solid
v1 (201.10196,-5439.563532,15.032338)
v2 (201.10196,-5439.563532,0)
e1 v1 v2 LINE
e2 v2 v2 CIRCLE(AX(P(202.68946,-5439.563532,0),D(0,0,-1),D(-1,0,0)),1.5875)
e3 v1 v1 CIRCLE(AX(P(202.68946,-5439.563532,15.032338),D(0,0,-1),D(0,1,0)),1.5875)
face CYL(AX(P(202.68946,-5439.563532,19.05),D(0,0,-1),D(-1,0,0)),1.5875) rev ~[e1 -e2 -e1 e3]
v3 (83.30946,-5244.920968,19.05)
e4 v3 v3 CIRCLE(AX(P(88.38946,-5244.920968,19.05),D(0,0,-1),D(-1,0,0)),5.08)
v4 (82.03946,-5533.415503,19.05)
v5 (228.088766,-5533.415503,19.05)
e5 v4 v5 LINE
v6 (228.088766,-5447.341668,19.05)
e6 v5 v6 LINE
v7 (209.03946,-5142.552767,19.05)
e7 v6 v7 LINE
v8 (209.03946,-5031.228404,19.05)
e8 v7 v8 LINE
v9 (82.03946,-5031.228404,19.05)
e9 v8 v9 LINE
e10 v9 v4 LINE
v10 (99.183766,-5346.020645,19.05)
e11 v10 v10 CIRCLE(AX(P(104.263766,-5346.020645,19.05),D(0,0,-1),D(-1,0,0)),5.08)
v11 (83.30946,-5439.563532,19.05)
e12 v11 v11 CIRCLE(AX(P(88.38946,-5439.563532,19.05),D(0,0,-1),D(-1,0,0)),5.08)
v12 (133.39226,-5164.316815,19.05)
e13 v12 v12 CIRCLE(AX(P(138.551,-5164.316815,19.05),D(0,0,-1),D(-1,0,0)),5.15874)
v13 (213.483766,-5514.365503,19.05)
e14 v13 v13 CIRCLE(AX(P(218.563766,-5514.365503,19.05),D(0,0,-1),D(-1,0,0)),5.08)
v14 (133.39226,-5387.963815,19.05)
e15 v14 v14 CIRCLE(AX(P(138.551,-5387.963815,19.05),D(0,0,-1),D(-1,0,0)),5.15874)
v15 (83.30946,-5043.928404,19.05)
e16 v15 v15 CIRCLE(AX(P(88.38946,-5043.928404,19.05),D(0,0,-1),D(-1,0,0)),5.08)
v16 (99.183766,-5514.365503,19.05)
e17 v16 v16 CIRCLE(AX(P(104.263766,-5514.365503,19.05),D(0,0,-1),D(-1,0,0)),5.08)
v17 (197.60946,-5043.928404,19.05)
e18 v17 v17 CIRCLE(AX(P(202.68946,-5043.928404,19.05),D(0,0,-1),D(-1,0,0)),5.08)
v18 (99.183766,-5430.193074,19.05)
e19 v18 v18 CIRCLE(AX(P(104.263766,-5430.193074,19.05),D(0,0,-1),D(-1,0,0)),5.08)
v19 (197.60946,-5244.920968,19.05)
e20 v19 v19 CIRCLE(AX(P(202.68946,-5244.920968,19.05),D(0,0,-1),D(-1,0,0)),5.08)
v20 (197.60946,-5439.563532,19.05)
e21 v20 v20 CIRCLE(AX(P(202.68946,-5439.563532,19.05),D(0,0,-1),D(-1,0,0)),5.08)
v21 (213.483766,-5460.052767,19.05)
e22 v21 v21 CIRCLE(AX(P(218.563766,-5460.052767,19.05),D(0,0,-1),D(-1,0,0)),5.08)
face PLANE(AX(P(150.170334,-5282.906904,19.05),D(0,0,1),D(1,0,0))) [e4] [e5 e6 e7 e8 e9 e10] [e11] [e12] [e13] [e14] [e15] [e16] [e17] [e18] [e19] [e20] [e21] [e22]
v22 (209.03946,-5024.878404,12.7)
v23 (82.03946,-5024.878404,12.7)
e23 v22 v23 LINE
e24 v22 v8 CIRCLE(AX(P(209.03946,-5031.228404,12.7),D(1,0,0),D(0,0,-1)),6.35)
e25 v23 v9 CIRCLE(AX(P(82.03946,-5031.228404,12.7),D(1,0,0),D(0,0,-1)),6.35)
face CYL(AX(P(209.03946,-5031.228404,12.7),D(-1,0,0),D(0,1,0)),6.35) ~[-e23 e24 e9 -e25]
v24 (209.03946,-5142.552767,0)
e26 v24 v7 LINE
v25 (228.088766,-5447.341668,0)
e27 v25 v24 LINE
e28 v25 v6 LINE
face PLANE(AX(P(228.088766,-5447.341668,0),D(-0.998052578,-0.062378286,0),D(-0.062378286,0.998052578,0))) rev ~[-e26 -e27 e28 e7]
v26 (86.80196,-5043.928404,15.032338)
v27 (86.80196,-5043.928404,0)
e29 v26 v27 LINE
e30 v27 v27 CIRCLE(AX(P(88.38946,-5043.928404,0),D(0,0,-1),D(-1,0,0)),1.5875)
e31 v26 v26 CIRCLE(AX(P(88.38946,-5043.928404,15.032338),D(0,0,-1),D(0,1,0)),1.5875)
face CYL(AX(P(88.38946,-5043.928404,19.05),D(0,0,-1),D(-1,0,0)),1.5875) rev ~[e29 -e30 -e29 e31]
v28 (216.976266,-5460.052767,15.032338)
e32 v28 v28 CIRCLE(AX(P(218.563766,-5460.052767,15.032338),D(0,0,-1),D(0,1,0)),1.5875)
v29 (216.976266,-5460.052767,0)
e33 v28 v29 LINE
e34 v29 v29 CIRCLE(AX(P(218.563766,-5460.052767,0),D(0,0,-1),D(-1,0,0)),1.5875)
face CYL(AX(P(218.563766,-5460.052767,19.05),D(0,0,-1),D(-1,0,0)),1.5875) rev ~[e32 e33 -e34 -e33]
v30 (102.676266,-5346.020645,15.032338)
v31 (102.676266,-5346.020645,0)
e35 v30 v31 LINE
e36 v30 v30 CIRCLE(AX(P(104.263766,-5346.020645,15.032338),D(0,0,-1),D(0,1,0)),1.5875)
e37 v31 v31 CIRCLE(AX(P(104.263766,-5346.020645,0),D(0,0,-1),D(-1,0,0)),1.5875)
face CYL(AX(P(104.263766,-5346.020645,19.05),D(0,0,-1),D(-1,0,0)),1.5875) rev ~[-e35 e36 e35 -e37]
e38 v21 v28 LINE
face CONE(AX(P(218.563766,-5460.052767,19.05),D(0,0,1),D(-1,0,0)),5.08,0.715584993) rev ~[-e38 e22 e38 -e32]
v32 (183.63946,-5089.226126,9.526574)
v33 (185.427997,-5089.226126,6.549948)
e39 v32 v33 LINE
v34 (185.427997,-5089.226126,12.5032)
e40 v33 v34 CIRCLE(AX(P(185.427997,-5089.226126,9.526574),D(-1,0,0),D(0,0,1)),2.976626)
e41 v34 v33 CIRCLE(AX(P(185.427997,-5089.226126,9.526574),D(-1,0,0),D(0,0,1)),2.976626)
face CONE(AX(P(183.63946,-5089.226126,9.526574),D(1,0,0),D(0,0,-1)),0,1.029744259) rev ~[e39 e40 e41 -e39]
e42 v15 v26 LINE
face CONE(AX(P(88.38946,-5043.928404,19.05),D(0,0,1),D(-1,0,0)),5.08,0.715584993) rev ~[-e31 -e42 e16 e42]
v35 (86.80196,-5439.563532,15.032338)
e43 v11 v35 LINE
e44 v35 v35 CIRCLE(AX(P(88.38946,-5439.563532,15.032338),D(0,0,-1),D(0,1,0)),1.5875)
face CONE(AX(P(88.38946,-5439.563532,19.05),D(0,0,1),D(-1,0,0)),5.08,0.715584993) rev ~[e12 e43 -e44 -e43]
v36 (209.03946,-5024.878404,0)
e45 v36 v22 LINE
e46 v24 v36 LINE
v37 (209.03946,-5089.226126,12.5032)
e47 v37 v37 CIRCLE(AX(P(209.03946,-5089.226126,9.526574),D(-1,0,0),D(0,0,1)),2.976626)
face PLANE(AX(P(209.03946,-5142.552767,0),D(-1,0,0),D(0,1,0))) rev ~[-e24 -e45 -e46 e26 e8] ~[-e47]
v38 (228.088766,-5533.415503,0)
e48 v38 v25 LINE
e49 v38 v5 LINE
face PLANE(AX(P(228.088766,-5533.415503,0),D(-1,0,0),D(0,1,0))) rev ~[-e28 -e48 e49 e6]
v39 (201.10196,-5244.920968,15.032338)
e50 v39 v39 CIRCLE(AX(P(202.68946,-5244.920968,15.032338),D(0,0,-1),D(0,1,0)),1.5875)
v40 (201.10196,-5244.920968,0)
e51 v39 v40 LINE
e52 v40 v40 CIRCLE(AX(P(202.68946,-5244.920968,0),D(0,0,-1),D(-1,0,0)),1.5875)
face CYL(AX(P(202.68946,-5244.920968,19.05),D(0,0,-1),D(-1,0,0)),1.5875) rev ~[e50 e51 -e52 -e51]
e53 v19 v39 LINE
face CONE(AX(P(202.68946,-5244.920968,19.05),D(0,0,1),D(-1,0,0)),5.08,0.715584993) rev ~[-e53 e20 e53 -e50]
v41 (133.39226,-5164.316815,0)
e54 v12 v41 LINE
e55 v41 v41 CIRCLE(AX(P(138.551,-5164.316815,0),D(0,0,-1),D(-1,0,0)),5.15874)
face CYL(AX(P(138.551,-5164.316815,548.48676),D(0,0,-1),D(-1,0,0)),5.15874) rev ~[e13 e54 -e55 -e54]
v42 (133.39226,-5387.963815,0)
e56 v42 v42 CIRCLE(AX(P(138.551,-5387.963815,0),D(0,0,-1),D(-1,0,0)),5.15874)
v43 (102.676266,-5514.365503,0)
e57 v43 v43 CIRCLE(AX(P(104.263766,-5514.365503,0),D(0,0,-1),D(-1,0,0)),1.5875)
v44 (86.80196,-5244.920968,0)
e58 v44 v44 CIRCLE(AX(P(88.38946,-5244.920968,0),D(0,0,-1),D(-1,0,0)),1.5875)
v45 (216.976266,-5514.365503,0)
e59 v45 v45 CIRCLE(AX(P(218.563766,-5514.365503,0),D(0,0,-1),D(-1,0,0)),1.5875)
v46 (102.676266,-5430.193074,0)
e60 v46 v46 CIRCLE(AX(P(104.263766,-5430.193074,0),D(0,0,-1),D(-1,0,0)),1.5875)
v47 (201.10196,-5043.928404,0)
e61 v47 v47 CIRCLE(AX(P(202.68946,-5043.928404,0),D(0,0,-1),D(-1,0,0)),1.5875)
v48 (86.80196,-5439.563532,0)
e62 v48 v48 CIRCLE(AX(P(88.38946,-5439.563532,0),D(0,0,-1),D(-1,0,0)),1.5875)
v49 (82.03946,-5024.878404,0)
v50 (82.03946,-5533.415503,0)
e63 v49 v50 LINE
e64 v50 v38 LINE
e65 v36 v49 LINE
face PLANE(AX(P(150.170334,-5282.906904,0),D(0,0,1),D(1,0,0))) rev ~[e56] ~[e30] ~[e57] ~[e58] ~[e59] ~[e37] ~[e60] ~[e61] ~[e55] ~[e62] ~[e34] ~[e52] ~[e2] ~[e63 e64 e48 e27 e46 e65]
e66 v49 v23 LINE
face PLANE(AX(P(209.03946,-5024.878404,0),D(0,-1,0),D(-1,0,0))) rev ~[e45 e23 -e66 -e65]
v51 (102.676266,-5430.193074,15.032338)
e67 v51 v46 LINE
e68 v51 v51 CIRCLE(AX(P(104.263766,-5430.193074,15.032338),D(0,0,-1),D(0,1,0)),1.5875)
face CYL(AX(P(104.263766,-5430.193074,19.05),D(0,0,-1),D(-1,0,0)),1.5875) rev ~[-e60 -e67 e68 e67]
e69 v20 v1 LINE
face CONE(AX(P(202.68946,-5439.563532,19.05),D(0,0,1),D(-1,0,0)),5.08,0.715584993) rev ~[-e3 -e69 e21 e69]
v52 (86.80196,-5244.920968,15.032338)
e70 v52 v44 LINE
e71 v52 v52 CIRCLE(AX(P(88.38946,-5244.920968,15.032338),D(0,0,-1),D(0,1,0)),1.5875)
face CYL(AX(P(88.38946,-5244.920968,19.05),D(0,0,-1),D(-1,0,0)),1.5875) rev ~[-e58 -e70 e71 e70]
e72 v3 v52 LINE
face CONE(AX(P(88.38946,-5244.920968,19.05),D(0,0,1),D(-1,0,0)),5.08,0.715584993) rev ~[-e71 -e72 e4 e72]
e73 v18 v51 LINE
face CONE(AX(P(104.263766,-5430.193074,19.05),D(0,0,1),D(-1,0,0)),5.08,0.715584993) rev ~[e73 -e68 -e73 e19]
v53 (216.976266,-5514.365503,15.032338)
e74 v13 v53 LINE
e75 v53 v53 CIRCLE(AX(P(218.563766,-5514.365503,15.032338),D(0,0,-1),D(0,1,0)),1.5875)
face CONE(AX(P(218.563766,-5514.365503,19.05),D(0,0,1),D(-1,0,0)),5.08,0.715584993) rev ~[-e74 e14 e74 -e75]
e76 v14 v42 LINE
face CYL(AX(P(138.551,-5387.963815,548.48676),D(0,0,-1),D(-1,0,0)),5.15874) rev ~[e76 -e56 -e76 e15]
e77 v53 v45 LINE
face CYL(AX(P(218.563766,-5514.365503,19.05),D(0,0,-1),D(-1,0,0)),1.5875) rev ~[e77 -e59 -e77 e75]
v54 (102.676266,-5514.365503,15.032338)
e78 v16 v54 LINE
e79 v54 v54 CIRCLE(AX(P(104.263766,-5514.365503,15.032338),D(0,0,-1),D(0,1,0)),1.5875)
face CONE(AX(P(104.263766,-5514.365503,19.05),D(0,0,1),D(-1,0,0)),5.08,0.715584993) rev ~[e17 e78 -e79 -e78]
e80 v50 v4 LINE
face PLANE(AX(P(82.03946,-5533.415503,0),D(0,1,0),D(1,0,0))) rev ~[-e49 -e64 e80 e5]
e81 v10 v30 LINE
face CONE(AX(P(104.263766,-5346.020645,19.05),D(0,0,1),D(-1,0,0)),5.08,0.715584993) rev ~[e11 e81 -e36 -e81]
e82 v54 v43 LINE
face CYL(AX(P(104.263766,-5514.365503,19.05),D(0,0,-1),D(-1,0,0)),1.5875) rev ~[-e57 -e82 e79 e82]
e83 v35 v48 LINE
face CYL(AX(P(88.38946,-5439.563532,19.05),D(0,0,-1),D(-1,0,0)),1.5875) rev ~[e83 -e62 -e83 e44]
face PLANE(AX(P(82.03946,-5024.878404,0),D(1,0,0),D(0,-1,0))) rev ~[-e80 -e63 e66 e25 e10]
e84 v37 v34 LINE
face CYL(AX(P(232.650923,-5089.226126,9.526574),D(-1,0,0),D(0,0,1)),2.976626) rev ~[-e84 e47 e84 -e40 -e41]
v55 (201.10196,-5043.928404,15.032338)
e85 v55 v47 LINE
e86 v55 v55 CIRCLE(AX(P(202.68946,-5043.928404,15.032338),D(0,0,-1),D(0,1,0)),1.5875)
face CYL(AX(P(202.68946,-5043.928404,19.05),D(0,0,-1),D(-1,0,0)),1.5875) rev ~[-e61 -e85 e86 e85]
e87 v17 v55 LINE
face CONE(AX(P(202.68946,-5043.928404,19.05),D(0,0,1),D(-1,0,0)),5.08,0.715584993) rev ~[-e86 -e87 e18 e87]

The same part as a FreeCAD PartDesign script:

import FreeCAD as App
import Part
import Sketcher

V = App.Vector
Q = App.Units.Quantity


def edges_at(feature, points):
    """Names of the edges that pass closest to the given points."""
    edges = feature.Shape.Edges
    near = lambda p: min(range(len(edges)), key=lambda i: edges[i].distToShape(Part.Vertex(*p))[0])
    return sorted({f"Edge{near(p) + 1}" for p in points})

doc = App.newDocument("Part")
params = doc.addObject("Spreadsheet::Sheet", "Params")
for row, (alias, value) in enumerate([
    ("sketch1_width", "5 in"),
    ("pad1_length", "0.75 in"),
    ("hole_diameter", "0.4062 in"),
    ("sketch3_diameter", "0.125 in"),
    ("hole2_diameter", "0.125 in"),
    ("hole2_depth", "2 in"),
    ("hole2_csink_diameter", "0.4 in"),
    ("hole3_diameter", "5.953252 mm"),
    ("hole3_depth", "23.611463 mm"),
    ("fillet_radius", "0.25 in"),
], start=1):
    params.set(f"A{row}", alias)
    params.set(f"B{row}", "=" + value)
    params.setAlias(f"B{row}", alias)

body = doc.addObject("PartDesign::Body", "Body")

# Sketch on XY plane
sketch1 = body.newObject("Sketcher::SketchObject", "Sketch")
sketch1.AttachmentSupport = (doc.getObject("XY_Plane"), [""])
sketch1.MapMode = "FlatFace"
sketch1.addGeometry(Part.LineSegment(V(82, -5025, 0), V(82, -5533, 0)), False)
sketch1.addGeometry(Part.LineSegment(V(82, -5533, 0), V(228, -5533, 0)), False)
sketch1.addGeometry(Part.LineSegment(V(228, -5533, 0), V(228, -5447, 0)), False)
sketch1.addGeometry(Part.LineSegment(V(228, -5447, 0), V(209, -5143, 0)), False)
sketch1.addGeometry(Part.LineSegment(V(209, -5143, 0), V(209, -5025, 0)), False)
sketch1.addGeometry(Part.LineSegment(V(209, -5025, 0), V(82, -5025, 0)), False)
sketch1.addConstraint(Sketcher.Constraint("Coincident", 0, 2, 1, 1))
sketch1.addConstraint(Sketcher.Constraint("Coincident", 1, 2, 2, 1))
sketch1.addConstraint(Sketcher.Constraint("Coincident", 2, 2, 3, 1))
sketch1.addConstraint(Sketcher.Constraint("Coincident", 3, 2, 4, 1))
sketch1.addConstraint(Sketcher.Constraint("Coincident", 4, 2, 5, 1))
sketch1.addConstraint(Sketcher.Constraint("Coincident", 5, 2, 0, 1))
sketch1.addConstraint(Sketcher.Constraint("Vertical", 0))
sketch1.addConstraint(Sketcher.Constraint("Horizontal", 1))
sketch1.addConstraint(Sketcher.Constraint("Vertical", 2))
sketch1.addConstraint(Sketcher.Constraint("Vertical", 4))
sketch1.addConstraint(Sketcher.Constraint("Horizontal", 5))
sketch1.addConstraint(Sketcher.Constraint("DistanceX", 5, 2, 5, 1, Q("5 in")))
sketch1.addConstraint(Sketcher.Constraint("DistanceY", 0, 2, 0, 1, Q("508.537099 mm")))
sketch1.addConstraint(Sketcher.Constraint("DistanceX", -1, 1, 0, 2, Q("3.2299 in")))
sketch1.addConstraint(Sketcher.Constraint("DistanceY", 2, 2, 3, 2, Q("304.788901 mm")))
sketch1.addConstraint(Sketcher.Constraint("Distance", 3, Q("305.383612 mm")))
sketch1.addConstraint(Sketcher.Constraint("DistanceY", 2, 1, 2, 2, Q("86.073835 mm")))
sketch1.addConstraint(Sketcher.Constraint("DistanceY", 2, 2, -1, 1, Q("5447.341668 mm")))
sketch1.setExpression("Constraints[11]", "Params.sketch1_width")
pad1 = body.newObject("PartDesign::Pad", "Pad")
pad1.Profile = sketch1
pad1.setExpression("Length", "Params.pad1_length")

# Sketch on XY plane
sketch2 = body.newObject("Sketcher::SketchObject", "Sketch001")
sketch2.AttachmentSupport = (doc.getObject("XY_Plane"), [""])
sketch2.MapMode = "FlatFace"
sketch2.AttachmentOffset = App.Placement(V(0, 0, 0.75 * 25.4), App.Rotation())
sketch2.addGeometry(Part.Circle(V(139, -5388, 0), V(0, 0, 1), 5), False)
sketch2.addGeometry(Part.Circle(V(139, -5164, 0), V(0, 0, 1), 5), False)
sketch2.addConstraint(Sketcher.Constraint("Equal", 0, 1))
sketch2.addConstraint(Sketcher.Constraint("Vertical", 0, 3, 1, 3))
sketch2.addConstraint(Sketcher.Constraint("Diameter", 0, Q("0.4062 in")))
sketch2.addConstraint(Sketcher.Constraint("DistanceY", 0, 3, 1, 3, Q("8.805 in")))
sketch2.addConstraint(Sketcher.Constraint("DistanceX", -1, 1, 0, 3, Q("138.551 mm")))
sketch2.addConstraint(Sketcher.Constraint("DistanceY", 0, 3, -1, 1, Q("5387.963815 mm")))
doc.recompute()
hole = body.newObject("PartDesign::Hole", "Hole")
hole.Profile = sketch2
hole.ThreadType = "None"
hole.setExpression("Diameter", "Params.hole_diameter")
hole.DepthType = "ThroughAll"

# Sketch on XY plane
sketch3 = body.newObject("Sketcher::SketchObject", "Sketch002")
sketch3.AttachmentSupport = (doc.getObject("XY_Plane"), [""])
sketch3.MapMode = "FlatFace"
sketch3.AttachmentOffset = App.Placement(V(0, 0, 0.75 * 25.4), App.Rotation())
sketch3.addGeometry(Part.Circle(V(218.6, -5460.1, 0), V(0, 0, 1), 1.6), False)
sketch3.addGeometry(Part.Circle(V(218.6, -5514.4, 0), V(0, 0, 1), 1.6), False)
sketch3.addGeometry(Part.Circle(V(202.7, -5439.6, 0), V(0, 0, 1), 1.6), False)
sketch3.addGeometry(Part.Circle(V(202.7, -5244.9, 0), V(0, 0, 1), 1.6), False)
sketch3.addGeometry(Part.Circle(V(202.7, -5043.9, 0), V(0, 0, 1), 1.6), False)
sketch3.addGeometry(Part.Circle(V(88.4, -5043.9, 0), V(0, 0, 1), 1.6), False)
sketch3.addGeometry(Part.Circle(V(88.4, -5244.9, 0), V(0, 0, 1), 1.6), False)
sketch3.addGeometry(Part.Circle(V(88.4, -5439.6, 0), V(0, 0, 1), 1.6), False)
sketch3.addGeometry(Part.Circle(V(104.3, -5346, 0), V(0, 0, 1), 1.6), False)
sketch3.addGeometry(Part.Circle(V(104.3, -5430.2, 0), V(0, 0, 1), 1.6), False)
sketch3.addGeometry(Part.Circle(V(104.3, -5514.4, 0), V(0, 0, 1), 1.6), False)
sketch3.addGeometry(Part.Circle(V(-104.3, -5514.4, 0), V(0, 0, 1), 1.6), False)
sketch3.addGeometry(Part.Circle(V(-104.3, -5430.2, 0), V(0, 0, 1), 1.6), False)
sketch3.addGeometry(Part.Circle(V(-104.3, -5346, 0), V(0, 0, 1), 1.6), False)
sketch3.addGeometry(Part.Circle(V(-88.4, -5439.6, 0), V(0, 0, 1), 1.6), False)
sketch3.addGeometry(Part.Circle(V(-88.4, -5244.9, 0), V(0, 0, 1), 1.6), False)
sketch3.addGeometry(Part.Circle(V(-88.4, -5043.9, 0), V(0, 0, 1), 1.6), False)
sketch3.addGeometry(Part.Circle(V(-202.7, -5043.9, 0), V(0, 0, 1), 1.6), False)
sketch3.addGeometry(Part.Circle(V(-202.7, -5244.9, 0), V(0, 0, 1), 1.6), False)
sketch3.addGeometry(Part.Circle(V(-202.7, -5439.6, 0), V(0, 0, 1), 1.6), False)
sketch3.addGeometry(Part.Circle(V(-218.6, -5514.4, 0), V(0, 0, 1), 1.6), False)
sketch3.addGeometry(Part.Circle(V(-218.6, -5460.1, 0), V(0, 0, 1), 1.6), False)
sketch3.addConstraint(Sketcher.Constraint("Equal", 0, 1))
sketch3.addConstraint(Sketcher.Constraint("Equal", 1, 2))
sketch3.addConstraint(Sketcher.Constraint("Equal", 2, 3))
sketch3.addConstraint(Sketcher.Constraint("Equal", 3, 4))
sketch3.addConstraint(Sketcher.Constraint("Equal", 4, 5))
sketch3.addConstraint(Sketcher.Constraint("Equal", 5, 6))
sketch3.addConstraint(Sketcher.Constraint("Equal", 6, 7))
sketch3.addConstraint(Sketcher.Constraint("Equal", 7, 8))
sketch3.addConstraint(Sketcher.Constraint("Equal", 8, 9))
sketch3.addConstraint(Sketcher.Constraint("Equal", 9, 10))
sketch3.addConstraint(Sketcher.Constraint("Equal", 10, 11))
sketch3.addConstraint(Sketcher.Constraint("Equal", 11, 12))
sketch3.addConstraint(Sketcher.Constraint("Equal", 12, 13))
sketch3.addConstraint(Sketcher.Constraint("Equal", 13, 14))
sketch3.addConstraint(Sketcher.Constraint("Equal", 14, 15))
sketch3.addConstraint(Sketcher.Constraint("Equal", 15, 16))
sketch3.addConstraint(Sketcher.Constraint("Equal", 16, 17))
sketch3.addConstraint(Sketcher.Constraint("Equal", 17, 18))
sketch3.addConstraint(Sketcher.Constraint("Equal", 18, 19))
sketch3.addConstraint(Sketcher.Constraint("Equal", 19, 20))
sketch3.addConstraint(Sketcher.Constraint("Equal", 20, 21))
sketch3.addConstraint(Sketcher.Constraint("Symmetric", 10, 3, 11, 3, -2))
sketch3.addConstraint(Sketcher.Constraint("Symmetric", 9, 3, 12, 3, -2))
sketch3.addConstraint(Sketcher.Constraint("Symmetric", 8, 3, 13, 3, -2))
sketch3.addConstraint(Sketcher.Constraint("Symmetric", 7, 3, 14, 3, -2))
sketch3.addConstraint(Sketcher.Constraint("Symmetric", 6, 3, 15, 3, -2))
sketch3.addConstraint(Sketcher.Constraint("Symmetric", 5, 3, 16, 3, -2))
sketch3.addConstraint(Sketcher.Constraint("Symmetric", 4, 3, 17, 3, -2))
sketch3.addConstraint(Sketcher.Constraint("Symmetric", 3, 3, 18, 3, -2))
sketch3.addConstraint(Sketcher.Constraint("Symmetric", 2, 3, 19, 3, -2))
sketch3.addConstraint(Sketcher.Constraint("Symmetric", 1, 3, 20, 3, -2))
sketch3.addConstraint(Sketcher.Constraint("Symmetric", 0, 3, 21, 3, -2))
sketch3.addConstraint(Sketcher.Constraint("Horizontal", 4, 3, 5, 3))
sketch3.addConstraint(Sketcher.Constraint("Horizontal", 3, 3, 6, 3))
sketch3.addConstraint(Sketcher.Constraint("Horizontal", 2, 3, 7, 3))
sketch3.addConstraint(Sketcher.Constraint("Horizontal", 1, 3, 10, 3))
sketch3.addConstraint(Sketcher.Constraint("Vertical", 0, 3, 1, 3))
sketch3.addConstraint(Sketcher.Constraint("Vertical", 2, 3, 3, 3))
sketch3.addConstraint(Sketcher.Constraint("Vertical", 3, 3, 4, 3))
sketch3.addConstraint(Sketcher.Constraint("Vertical", 5, 3, 6, 3))
sketch3.addConstraint(Sketcher.Constraint("Vertical", 6, 3, 7, 3))
sketch3.addConstraint(Sketcher.Constraint("Vertical", 8, 3, 9, 3))
sketch3.addConstraint(Sketcher.Constraint("Vertical", 9, 3, 10, 3))
sketch3.addConstraint(Sketcher.Constraint("Diameter", 0, Q("0.125 in")))
sketch3.addConstraint(Sketcher.Constraint("DistanceX", 5, 3, 4, 3, Q("4.5 in")))
sketch3.addConstraint(Sketcher.Constraint("DistanceX", 8, 3, 0, 3, Q("4.5 in")))
sketch3.addConstraint(Sketcher.Constraint("DistanceX", -1, 1, 2, 3, Q("7.9799 in")))
sketch3.addConstraint(Sketcher.Constraint("DistanceY", 0, 3, 3, 3, Q("215.131799 mm")))
sketch3.addConstraint(Sketcher.Constraint("DistanceY", 1, 3, 4, 3, Q("470.437099 mm")))
sketch3.addConstraint(Sketcher.Constraint("DistanceY", 2, 3, -1, 1, Q("5439.563532 mm")))
sketch3.addConstraint(Sketcher.Constraint("DistanceY", 1, 3, 2, 3, Q("74.801971 mm")))
sketch3.addConstraint(Sketcher.Constraint("DistanceY", 9, 3, 8, 3, Q("84.172429 mm")))
sketch3.addConstraint(Sketcher.Constraint("DistanceY", 1, 3, 9, 3, Q("84.172429 mm")))
sketch3.addConstraint(Sketcher.Constraint("DistanceX", -1, 1, 0, 3, Q("218.563766 mm")))
sketch3.addConstraint(Sketcher.Constraint("DistanceY", 0, 3, -1, 1, Q("5460.052767 mm")))
sketch3.setExpression("Constraints[43]", "Params.sketch3_diameter")
doc.recompute()
hole2 = body.newObject("PartDesign::Hole", "Hole001")
hole2.Profile = sketch3
hole2.ThreadType = "None"
hole2.setExpression("Diameter", "Params.hole2_diameter")
hole2.DepthType = "Dimension"
hole2.setExpression("Depth", "Params.hole2_depth")
hole2.DrillPoint = "Angled"
hole2.DrillPointAngle = 118
hole2.HoleCutType = "Countersink"
hole2.setExpression("HoleCutDiameter", "Params.hole2_csink_diameter")
hole2.HoleCutCountersinkAngle = 82

# Sketch on YZ plane
sketch4 = body.newObject("Sketcher::SketchObject", "Sketch003")
sketch4.AttachmentSupport = (doc.getObject("YZ_Plane"), [""])
sketch4.MapMode = "FlatFace"
sketch4.AttachmentOffset = App.Placement(V(0, 0, 8.2299 * 25.4), App.Rotation())
sketch4.addGeometry(Part.Circle(V(-5089.2, 9.5, 0), V(0, 0, 1), 3), False)
sketch4.addConstraint(Sketcher.Constraint("Diameter", 0, Q("5.953252 mm")))
sketch4.addConstraint(Sketcher.Constraint("DistanceX", 0, 3, -1, 1, Q("5089.226126 mm")))
sketch4.addConstraint(Sketcher.Constraint("DistanceY", -1, 1, 0, 3, Q("9.526574 mm")))
doc.recompute()
hole3 = body.newObject("PartDesign::Hole", "Hole002")
hole3.Profile = sketch4
hole3.ThreadType = "None"
hole3.setExpression("Diameter", "Params.hole3_diameter")
hole3.DepthType = "Dimension"
hole3.setExpression("Depth", "Params.hole3_depth")
hole3.DrillPoint = "Angled"
hole3.DrillPointAngle = 118
doc.recompute()

fillet = body.newObject("PartDesign::Fillet", "Fillet")
fillet.Base = (hole3, edges_at(hole3, [(145.539, -5024.878, 19.05)]))
fillet.setExpression("Radius", "Params.fillet_radius")

doc.recompute()
